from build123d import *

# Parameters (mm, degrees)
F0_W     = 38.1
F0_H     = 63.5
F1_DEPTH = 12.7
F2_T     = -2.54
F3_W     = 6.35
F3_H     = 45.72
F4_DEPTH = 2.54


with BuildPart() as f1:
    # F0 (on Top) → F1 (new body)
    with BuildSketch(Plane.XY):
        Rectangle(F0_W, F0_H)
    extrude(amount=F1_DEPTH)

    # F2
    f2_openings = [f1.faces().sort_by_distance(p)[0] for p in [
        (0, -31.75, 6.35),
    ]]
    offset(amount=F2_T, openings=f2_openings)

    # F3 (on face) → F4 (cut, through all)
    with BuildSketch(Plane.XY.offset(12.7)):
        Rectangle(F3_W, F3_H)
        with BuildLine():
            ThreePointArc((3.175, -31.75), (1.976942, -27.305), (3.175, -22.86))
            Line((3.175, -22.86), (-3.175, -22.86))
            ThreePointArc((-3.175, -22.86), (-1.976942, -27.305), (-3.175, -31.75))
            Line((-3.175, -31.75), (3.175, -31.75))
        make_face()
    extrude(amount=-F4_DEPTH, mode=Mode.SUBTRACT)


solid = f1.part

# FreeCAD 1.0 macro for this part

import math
import FreeCAD as App
import Part
import Sketcher

V = App.Vector
Q = App.Units.Quantity


def faces_at(feature, points):
    """Names of the faces that lie closest to the given points."""
    faces = feature.Shape.Faces
    near = lambda p: min(range(len(faces)), key=lambda i: faces[i].distToShape(Part.Vertex(*p))[0])
    return sorted({f"Face{near(p) + 1}" for p in points})


def add_polygon(sketch, points):
    """Adds a closed chain of lines whose ends are joined by coincident constraints."""
    first, n = sketch.GeometryCount, len(points)
    for a, b in zip(points, points[1:] + points[:1]):
        sketch.addGeometry(Part.LineSegment(App.Vector(*a, 0), App.Vector(*b, 0)), False)
    for i in range(n):
        sketch.addConstraint(Sketcher.Constraint("Coincident", first + i, 2, first + (i + 1) % n, 1))

doc = App.newDocument("Part")
body = doc.addObject("PartDesign::Body", "Body")

# Sketch on XY plane
sketch1 = body.newObject("Sketcher::SketchObject", "Sketch")
sketch1.AttachmentSupport = (doc.getObject("XY_Plane"), [""])
sketch1.MapMode = "FlatFace"
add_polygon(sketch1, [(-19, 32), (-19, -32), (19, -32), (19, 32)])  # lines 0-3
sketch1.addConstraint(Sketcher.Constraint("Vertical", 0))
sketch1.addConstraint(Sketcher.Constraint("Horizontal", 1))
sketch1.addConstraint(Sketcher.Constraint("Vertical", 2))
sketch1.addConstraint(Sketcher.Constraint("Horizontal", 3))
sketch1.addConstraint(Sketcher.Constraint("Symmetric", 0, 2, 2, 2, -1, 1))
sketch1.addConstraint(Sketcher.Constraint("DistanceX", 1, 1, 1, 2, Q("1.5 in")))
sketch1.addConstraint(Sketcher.Constraint("DistanceY", 0, 2, 0, 1, Q("2.5 in")))
pad1 = body.newObject("PartDesign::Pad", "Pad")
pad1.Profile = sketch1
pad1.Length = Q("0.5 in")
doc.recompute()

thickness = body.newObject("PartDesign::Thickness", "Thickness")
thickness.Base = (pad1, faces_at(pad1, [(0, -31.75, 6.35)]))
thickness.Value = Q("0.1 in")
thickness.Reversed = True
thickness.Join = "Arc"

# Sketch on XY plane
sketch2 = body.newObject("Sketcher::SketchObject", "Sketch001")
sketch2.AttachmentSupport = (doc.getObject("XY_Plane"), [""])
sketch2.MapMode = "FlatFace"
sketch2.AttachmentOffset = App.Placement(V(0, 0, 0.5 * 25.4), App.Rotation())
sketch2.addGeometry(Part.LineSegment(V(-3, 23, 0), V(-3, -23, 0)), False)
sketch2.addGeometry(Part.ArcOfCircle(Part.Circle(V(-11, -27, 0), V(0, 0, 1), 9), math.radians(-30), math.radians(30)), False)
sketch2.addGeometry(Part.LineSegment(V(-3, -32, 0), V(3, -32, 0)), False)
sketch2.addGeometry(Part.ArcOfCircle(Part.Circle(V(11, -27, 0), V(0, 0, 1), 9), math.radians(150), math.radians(210)), False)
sketch2.addGeometry(Part.LineSegment(V(3, -23, 0), V(3, 23, 0)), False)
sketch2.addGeometry(Part.LineSegment(V(3, 23, 0), V(-3, 23, 0)), False)
sketch2.addConstraint(Sketcher.Constraint("Coincident", 0, 2, 1, 2))
sketch2.addConstraint(Sketcher.Constraint("Coincident", 1, 1, 2, 1))
sketch2.addConstraint(Sketcher.Constraint("Coincident", 2, 2, 3, 2))
sketch2.addConstraint(Sketcher.Constraint("Coincident", 3, 1, 4, 1))
sketch2.addConstraint(Sketcher.Constraint("Coincident", 4, 2, 5, 1))
sketch2.addConstraint(Sketcher.Constraint("Coincident", 5, 2, 0, 1))
sketch2.addConstraint(Sketcher.Constraint("Vertical", 0))
sketch2.addConstraint(Sketcher.Constraint("Horizontal", 2))
sketch2.addConstraint(Sketcher.Constraint("Vertical", 4))
sketch2.addConstraint(Sketcher.Constraint("Horizontal", 5))
sketch2.addConstraint(Sketcher.Constraint("Equal", 1, 3))
sketch2.addConstraint(Sketcher.Constraint("Symmetric", 0, 2, 4, 2, -1, 1))
sketch2.addConstraint(Sketcher.Constraint("Symmetric", 1, 3, 3, 3, -2))
sketch2.addConstraint(Sketcher.Constraint("Vertical", 0, 2, 1, 1))
sketch2.addConstraint(Sketcher.Constraint("DistanceY", 0, 2, 0, 1, Q("1.8 in")))
sketch2.addConstraint(Sketcher.Constraint("DistanceX", 2, 1, 2, 2, Q("0.25 in")))
sketch2.addConstraint(Sketcher.Constraint("DistanceY", 1, 1, -1, 1, Q("1.25 in")))
sketch2.addConstraint(Sketcher.Constraint("Radius", 1, Q("8.844884 mm")))
pocket1 = body.newObject("PartDesign::Pocket", "Pocket")
pocket1.Profile = sketch2
pocket1.Length = Q("0.1 in")

doc.recompute()
